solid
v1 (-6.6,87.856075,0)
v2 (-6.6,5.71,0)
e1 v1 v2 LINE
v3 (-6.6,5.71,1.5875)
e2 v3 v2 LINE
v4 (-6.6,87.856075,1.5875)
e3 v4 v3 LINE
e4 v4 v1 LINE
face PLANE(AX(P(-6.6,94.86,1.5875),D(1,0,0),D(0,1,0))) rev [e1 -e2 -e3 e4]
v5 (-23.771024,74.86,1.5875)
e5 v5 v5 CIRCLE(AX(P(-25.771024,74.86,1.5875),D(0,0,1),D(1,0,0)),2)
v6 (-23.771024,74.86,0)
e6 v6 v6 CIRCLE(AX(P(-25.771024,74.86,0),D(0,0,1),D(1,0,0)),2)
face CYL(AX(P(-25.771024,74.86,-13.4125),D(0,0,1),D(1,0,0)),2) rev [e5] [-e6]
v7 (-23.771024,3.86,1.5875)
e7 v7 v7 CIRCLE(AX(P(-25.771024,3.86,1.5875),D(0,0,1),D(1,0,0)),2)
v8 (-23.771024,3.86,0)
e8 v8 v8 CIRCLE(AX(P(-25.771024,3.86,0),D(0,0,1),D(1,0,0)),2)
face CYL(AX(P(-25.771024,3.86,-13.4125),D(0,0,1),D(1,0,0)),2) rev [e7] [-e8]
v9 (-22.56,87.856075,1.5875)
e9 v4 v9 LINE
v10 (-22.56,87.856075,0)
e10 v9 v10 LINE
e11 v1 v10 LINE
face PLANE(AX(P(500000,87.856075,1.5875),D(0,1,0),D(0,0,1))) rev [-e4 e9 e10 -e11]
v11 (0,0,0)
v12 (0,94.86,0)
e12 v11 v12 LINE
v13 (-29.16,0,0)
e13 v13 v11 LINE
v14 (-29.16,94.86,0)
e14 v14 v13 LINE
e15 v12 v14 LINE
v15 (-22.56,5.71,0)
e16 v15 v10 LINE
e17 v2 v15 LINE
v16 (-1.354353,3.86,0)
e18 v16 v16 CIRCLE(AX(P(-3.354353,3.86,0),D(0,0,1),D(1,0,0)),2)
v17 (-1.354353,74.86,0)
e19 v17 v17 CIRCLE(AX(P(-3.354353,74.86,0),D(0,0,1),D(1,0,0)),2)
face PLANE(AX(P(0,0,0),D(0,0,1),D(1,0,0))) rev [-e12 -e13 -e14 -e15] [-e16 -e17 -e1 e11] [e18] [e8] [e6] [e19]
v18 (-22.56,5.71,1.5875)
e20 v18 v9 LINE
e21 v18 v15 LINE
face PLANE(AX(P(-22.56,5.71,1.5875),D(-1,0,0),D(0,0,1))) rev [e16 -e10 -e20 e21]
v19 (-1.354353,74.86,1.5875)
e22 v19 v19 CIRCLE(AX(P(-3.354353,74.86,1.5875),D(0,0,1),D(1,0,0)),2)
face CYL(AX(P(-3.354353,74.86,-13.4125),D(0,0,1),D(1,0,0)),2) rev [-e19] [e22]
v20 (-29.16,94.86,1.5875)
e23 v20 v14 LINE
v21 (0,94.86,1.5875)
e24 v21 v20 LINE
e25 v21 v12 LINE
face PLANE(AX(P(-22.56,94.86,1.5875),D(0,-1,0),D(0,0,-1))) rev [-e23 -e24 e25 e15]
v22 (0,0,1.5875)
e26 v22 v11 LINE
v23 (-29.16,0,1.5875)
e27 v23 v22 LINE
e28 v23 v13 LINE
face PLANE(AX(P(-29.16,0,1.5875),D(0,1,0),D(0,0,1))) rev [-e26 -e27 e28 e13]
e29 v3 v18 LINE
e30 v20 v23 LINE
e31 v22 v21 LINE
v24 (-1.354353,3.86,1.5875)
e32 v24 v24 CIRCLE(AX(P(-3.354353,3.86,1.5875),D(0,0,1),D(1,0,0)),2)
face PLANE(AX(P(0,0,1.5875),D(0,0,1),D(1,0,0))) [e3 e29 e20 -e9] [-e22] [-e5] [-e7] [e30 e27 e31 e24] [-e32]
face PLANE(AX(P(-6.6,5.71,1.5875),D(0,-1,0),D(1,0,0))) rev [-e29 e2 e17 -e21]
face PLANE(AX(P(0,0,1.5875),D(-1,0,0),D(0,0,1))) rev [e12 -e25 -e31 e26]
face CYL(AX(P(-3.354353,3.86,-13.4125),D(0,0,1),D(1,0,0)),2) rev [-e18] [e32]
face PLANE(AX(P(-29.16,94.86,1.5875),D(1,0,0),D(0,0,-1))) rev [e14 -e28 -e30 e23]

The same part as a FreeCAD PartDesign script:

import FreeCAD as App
import Part
import Sketcher


def add_polygon(sketch, points):
    """Adds a closed chain of lines whose ends are joined by coincident constraints."""
    first, n = sketch.GeometryCount, len(points)
    for a, b in zip(points, points[1:] + points[:1]):
        sketch.addGeometry(Part.LineSegment(App.Vector(*a, 0), App.Vector(*b, 0)), False)
    for i in range(n):
        sketch.addConstraint(Sketcher.Constraint("Coincident", first + i, 2, first + (i + 1) % n, 1))

doc = App.newDocument("Part")
body = doc.addObject("PartDesign::Body", "Body")

sketch1 = body.newObject("Sketcher::SketchObject", "Sketch")
sketch1.AttachmentSupport = (doc.getObject("XY_Plane"), [""])
sketch1.MapMode = "FlatFace"
add_polygon(sketch1, [(0, 0), (0, 95), (-7, 95), (-7, 6), (-23, 6), (-23, 95), (-29, 95), (-29, 0)])
sketch1.addConstraint(Sketcher.Constraint("Vertical", 0))
sketch1.addConstraint(Sketcher.Constraint("Horizontal", 1))
sketch1.addConstraint(Sketcher.Constraint("Vertical", 2))
sketch1.addConstraint(Sketcher.Constraint("Horizontal", 3))
sketch1.addConstraint(Sketcher.Constraint("Vertical", 4))
sketch1.addConstraint(Sketcher.Constraint("Horizontal", 5))
sketch1.addConstraint(Sketcher.Constraint("Vertical", 6))
sketch1.addConstraint(Sketcher.Constraint("Horizontal", 7))
sketch1.addConstraint(Sketcher.Constraint("Coincident", 7, 2, -1, 1))
sketch1.addConstraint(Sketcher.Constraint("Horizontal", 1, 2, 4, 2))
sketch1.addConstraint(Sketcher.Constraint("Equal", 1, 5))
sketch1.addConstraint(Sketcher.Constraint("DistanceX", 1, 2, 1, 1, 6.6))
sketch1.addConstraint(Sketcher.Constraint("DistanceX", 3, 2, 3, 1, 15.96))
sketch1.addConstraint(Sketcher.Constraint("DistanceY", 0, 1, 0, 2, 94.86))
sketch1.addConstraint(Sketcher.Constraint("DistanceY", 2, 2, 2, 1, 89.15))
pad1 = body.newObject("PartDesign::Pad", "Pad")
pad1.Profile = sketch1
pad1.Length = 1.5875

sketch2 = body.newObject("Sketcher::SketchObject", "Sketch001")
sketch2.AttachmentSupport = (doc.getObject("YZ_Plane"), [""])
sketch2.MapMode = "FlatFace"
sketch2.AttachmentOffset = App.Placement(App.Vector(0, 0, -22.56), App.Rotation())
add_polygon(sketch2, [(94.9, 1.6), (87.9, 1.6), (87.9, 0), (94.9, 0)])
sketch2.addConstraint(Sketcher.Constraint("Horizontal", 0))
sketch2.addConstraint(Sketcher.Constraint("Vertical", 1))
sketch2.addConstraint(Sketcher.Constraint("Horizontal", 2))
sketch2.addConstraint(Sketcher.Constraint("Vertical", 3))
sketch2.addConstraint(Sketcher.Constraint("PointOnObject", 1, 2, -1))
sketch2.addConstraint(Sketcher.Constraint("DistanceX", -1, 1, 2, 2, 94.86))
sketch2.addConstraint(Sketcher.Constraint("DistanceY", 1, 2, 1, 1, 1.5875))
sketch2.addConstraint(Sketcher.Constraint("DistanceX", 0, 2, 0, 1, 7.003925))
pad2 = body.newObject("PartDesign::Pad", "Pad001")
pad2.Profile = sketch2
pad2.Type = "UpToFirst"

sketch3 = body.newObject("Sketcher::SketchObject", "Sketch002")
sketch3.AttachmentSupport = (doc.getObject("XY_Plane"), [""])
sketch3.MapMode = "FlatFace"
sketch3.AttachmentOffset = App.Placement(App.Vector(0, 0, 1.5875), App.Rotation())
sketch3.addGeometry(Part.Circle(App.Vector(-3.4, 47.4, 0), App.Vector(0, 0, 1), 2), False)
sketch3.addGeometry(Part.Circle(App.Vector(-25.8, 47.4, 0), App.Vector(0, 0, 1), 2), False)
sketch3.addGeometry(Part.Circle(App.Vector(-25.8, 3.9, 0), App.Vector(0, 0, 1), 2), False)
sketch3.addGeometry(Part.Circle(App.Vector(-3.4, 3.9, 0), App.Vector(0, 0, 1), 2), False)
sketch3.addGeometry(Part.Circle(App.Vector(-25.8, 74.9, 0), App.Vector(0, 0, 1), 2), False)
sketch3.addGeometry(Part.Circle(App.Vector(-3.4, 74.9, 0), App.Vector(0, 0, 1), 2), False)
sketch3.addConstraint(Sketcher.Constraint("Equal", 0, 1))
sketch3.addConstraint(Sketcher.Constraint("Equal", 1, 2))
sketch3.addConstraint(Sketcher.Constraint("Equal", 2, 3))
sketch3.addConstraint(Sketcher.Constraint("Equal", 3, 4))
sketch3.addConstraint(Sketcher.Constraint("Equal", 4, 5))
sketch3.addConstraint(Sketcher.Constraint("Horizontal", 0, 3, 1, 3))
sketch3.addConstraint(Sketcher.Constraint("Horizontal", 2, 3, 3, 3))
sketch3.addConstraint(Sketcher.Constraint("Horizontal", 4, 3, 5, 3))
sketch3.addConstraint(Sketcher.Constraint("Vertical", 1, 3, 2, 3))
sketch3.addConstraint(Sketcher.Constraint("Vertical", 0, 3, 3, 3))
sketch3.addConstraint(Sketcher.Constraint("Vertical", 2, 3, 4, 3))
sketch3.addConstraint(Sketcher.Constraint("Vertical", 3, 3, 5, 3))
sketch3.addConstraint(Sketcher.Constraint("Diameter", 0, 4.0))
sketch3.addConstraint(Sketcher.Constraint("DistanceY", 2, 3, 4, 3, 71.0))
sketch3.addConstraint(Sketcher.Constraint("DistanceY", -1, 1, 2, 3, 3.86))
sketch3.addConstraint(Sketcher.Constraint("DistanceX", 1, 3, 0, 3, 22.416671))
sketch3.addConstraint(Sketcher.Constraint("DistanceX", 0, 3, -1, 1, 3.354353))
sketch3.addConstraint(Sketcher.Constraint("DistanceY", -1, 1, 0, 3, 47.428062))
pocket1 = body.newObject("PartDesign::Pocket", "Pocket")
pocket1.Profile = sketch3
pocket1.Length = 15

sketch4 = body.newObject("Sketcher::SketchObject", "Sketch003")
sketch4.AttachmentSupport = (doc.getObject("XY_Plane"), [""])
sketch4.MapMode = "FlatFace"
sketch4.AttachmentOffset = App.Placement(App.Vector(0, 0, 1.5875), App.Rotation())
sketch4.addGeometry(Part.Circle(App.Vector(-25.8, 47.4, 0), App.Vector(0, 0, 1), 2), False)
sketch4.addGeometry(Part.Circle(App.Vector(-3.4, 47.4, 0), App.Vector(0, 0, 1), 2), False)
sketch4.addConstraint(Sketcher.Constraint("Equal", 0, 1))
sketch4.addConstraint(Sketcher.Constraint("Horizontal", 0, 3, 1, 3))
sketch4.addConstraint(Sketcher.Constraint("Diameter", 0, 4.0))
sketch4.addConstraint(Sketcher.Constraint("DistanceX", 0, 3, 1, 3, 22.416671))
sketch4.addConstraint(Sketcher.Constraint("DistanceX", 0, 3, -1, 1, 25.771024))
sketch4.addConstraint(Sketcher.Constraint("DistanceY", -1, 1, 0, 3, 47.428062))
pad3 = body.newObject("PartDesign::Pad", "Pad002")
pad3.Profile = sketch4
pad3.Length = 1.5875
pad3.Reversed = True

doc.recompute()
